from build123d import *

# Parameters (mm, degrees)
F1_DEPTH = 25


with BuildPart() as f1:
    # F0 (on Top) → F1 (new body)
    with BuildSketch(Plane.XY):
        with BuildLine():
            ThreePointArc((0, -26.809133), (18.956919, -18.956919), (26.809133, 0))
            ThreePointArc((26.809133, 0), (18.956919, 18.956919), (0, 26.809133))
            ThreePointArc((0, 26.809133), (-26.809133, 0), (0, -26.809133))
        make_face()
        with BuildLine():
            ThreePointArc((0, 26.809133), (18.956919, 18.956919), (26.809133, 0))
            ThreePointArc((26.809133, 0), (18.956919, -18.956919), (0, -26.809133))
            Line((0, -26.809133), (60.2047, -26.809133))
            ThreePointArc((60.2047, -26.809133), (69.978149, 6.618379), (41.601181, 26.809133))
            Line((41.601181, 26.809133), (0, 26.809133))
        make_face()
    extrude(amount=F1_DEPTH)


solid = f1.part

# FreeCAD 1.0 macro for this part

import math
import FreeCAD as App
import Part
import Sketcher

doc = App.newDocument("Part")
body = doc.addObject("PartDesign::Body", "Body")

# Sketch on XY plane
sketch1 = body.newObject("Sketcher::SketchObject", "Sketch")
sketch1.AttachmentSupport = (doc.getObject("XY_Plane"), [""])
sketch1.MapMode = "FlatFace"
sketch1.addGeometry([
    Part.ArcOfCircle(Part.Circle(App.Vector(0, 0, 0), App.Vector(0, 0, 1), 26.809133), math.radians(90), math.radians(270)),
    Part.LineSegment(App.Vector(0, -26.809133, 0), App.Vector(60.2047, -26.809133, 0)),
    Part.ArcOfCircle(Part.Circle(App.Vector(41.60118, -3.22736, 0), App.Vector(0, 0, 1), 30.036493), math.radians(-51.730302), math.radians(89.999999)),
    Part.LineSegment(App.Vector(41.601181, 26.809133, 0), App.Vector(0, 26.809133, 0)),
], False)
sketch1.addConstraint([
    Sketcher.Constraint("Tangent", 0, 2, 1, 1),
    Sketcher.Constraint("Coincident", 1, 2, 2, 1),
    Sketcher.Constraint("Tangent", 2, 2, 3, 1),
    Sketcher.Constraint("Tangent", 3, 2, 0, 1),
    Sketcher.Constraint("Horizontal", 1),
    Sketcher.Constraint("Horizontal", 3),
    Sketcher.Constraint("Coincident", 0, 3, -1, 1),
    Sketcher.Constraint("DistanceX", 1, 1, 1, 2, 60.2047),
    Sketcher.Constraint("Radius", 0, 26.809133),
    Sketcher.Constraint("Radius", 2, 30.036493),
])
pad1 = body.newObject("PartDesign::Pad", "Pad")
pad1.Profile = sketch1
pad1.Length = 25

doc.recompute()
